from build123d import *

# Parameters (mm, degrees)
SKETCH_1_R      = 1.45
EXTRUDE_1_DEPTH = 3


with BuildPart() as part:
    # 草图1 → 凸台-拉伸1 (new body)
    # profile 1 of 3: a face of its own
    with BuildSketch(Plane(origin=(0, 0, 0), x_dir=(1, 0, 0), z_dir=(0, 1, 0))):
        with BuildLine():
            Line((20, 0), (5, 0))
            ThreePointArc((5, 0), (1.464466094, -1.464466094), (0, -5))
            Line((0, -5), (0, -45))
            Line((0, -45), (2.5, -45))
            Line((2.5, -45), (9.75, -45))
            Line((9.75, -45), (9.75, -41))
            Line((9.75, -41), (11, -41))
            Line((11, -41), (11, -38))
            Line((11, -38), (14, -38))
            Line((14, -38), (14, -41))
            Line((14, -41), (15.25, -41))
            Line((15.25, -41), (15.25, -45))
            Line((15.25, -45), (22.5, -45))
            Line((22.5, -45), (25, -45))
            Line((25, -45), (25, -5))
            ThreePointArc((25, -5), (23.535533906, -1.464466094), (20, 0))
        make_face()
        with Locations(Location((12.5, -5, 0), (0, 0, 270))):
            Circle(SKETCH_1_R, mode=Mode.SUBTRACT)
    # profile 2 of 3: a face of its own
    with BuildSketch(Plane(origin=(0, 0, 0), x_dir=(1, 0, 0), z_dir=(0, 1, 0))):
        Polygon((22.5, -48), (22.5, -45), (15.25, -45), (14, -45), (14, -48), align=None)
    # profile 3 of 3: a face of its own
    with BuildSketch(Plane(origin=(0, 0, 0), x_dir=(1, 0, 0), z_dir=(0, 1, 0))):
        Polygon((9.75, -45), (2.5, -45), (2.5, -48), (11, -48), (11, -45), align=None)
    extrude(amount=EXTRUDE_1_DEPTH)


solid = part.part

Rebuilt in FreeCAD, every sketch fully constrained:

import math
import FreeCAD as App
import Part
import Sketcher

V = App.Vector
Q = App.Units.Quantity

doc = App.newDocument("Part")
body = doc.addObject("PartDesign::Body", "Body")

sketch1 = doc.addObject("Sketcher::SketchObject", "Sketch")
body.addObject(sketch1)
sketch1.AttachmentSupport = (doc.XZ_Plane, [""])
sketch1.MapMode = "FlatFace"
sketch1.addGeometry(Part.LineSegment(V(20, 0, 0), V(5, 0, 0)), False)
sketch1.addGeometry(Part.ArcOfCircle(Part.Circle(V(5, 5, 0), V(0, 0, 1), 5), math.radians(180), math.radians(270)), False)
sketch1.addGeometry(Part.LineSegment(V(0, 5, 0), V(0, 45, 0)), False)
sketch1.addGeometry(Part.LineSegment(V(0, 45, 0), V(2.5, 45, 0)), False)
sketch1.addGeometry(Part.LineSegment(V(2.5, 45, 0), V(2.5, 48, 0)), False)
sketch1.addGeometry(Part.LineSegment(V(2.5, 48, 0), V(11, 48, 0)), False)
sketch1.addGeometry(Part.LineSegment(V(11, 48, 0), V(11, 45, 0)), False)
sketch1.addGeometry(Part.LineSegment(V(11, 45, 0), V(9.8, 45, 0)), False)
sketch1.addGeometry(Part.LineSegment(V(9.8, 45, 0), V(9.8, 41, 0)), False)
sketch1.addGeometry(Part.LineSegment(V(9.8, 41, 0), V(11, 41, 0)), False)
sketch1.addGeometry(Part.LineSegment(V(11, 41, 0), V(11, 38, 0)), False)
sketch1.addGeometry(Part.LineSegment(V(11, 38, 0), V(14, 38, 0)), False)
sketch1.addGeometry(Part.LineSegment(V(14, 38, 0), V(14, 41, 0)), False)
sketch1.addGeometry(Part.LineSegment(V(14, 41, 0), V(15.2, 41, 0)), False)
sketch1.addGeometry(Part.LineSegment(V(15.2, 41, 0), V(15.2, 45, 0)), False)
sketch1.addGeometry(Part.LineSegment(V(15.2, 45, 0), V(14, 45, 0)), False)
sketch1.addGeometry(Part.LineSegment(V(14, 45, 0), V(14, 48, 0)), False)
sketch1.addGeometry(Part.LineSegment(V(14, 48, 0), V(22.5, 48, 0)), False)
sketch1.addGeometry(Part.LineSegment(V(22.5, 48, 0), V(22.5, 45, 0)), False)
sketch1.addGeometry(Part.LineSegment(V(22.5, 45, 0), V(25, 45, 0)), False)
sketch1.addGeometry(Part.LineSegment(V(25, 45, 0), V(25, 5, 0)), False)
sketch1.addGeometry(Part.ArcOfCircle(Part.Circle(V(20, 5, 0), V(0, 0, 1), 5), math.radians(-90), math.radians(0)), False)
sketch1.addGeometry(Part.Circle(V(12.5, 5, 0), V(0, 0, 1), 1.4), False)
sketch1.addConstraint(Sketcher.Constraint("Tangent", 0, 2, 1, 2))
sketch1.addConstraint(Sketcher.Constraint("Tangent", 1, 1, 2, 1))
sketch1.addConstraint(Sketcher.Constraint("Coincident", 2, 2, 3, 1))
sketch1.addConstraint(Sketcher.Constraint("Coincident", 3, 2, 4, 1))
sketch1.addConstraint(Sketcher.Constraint("Coincident", 4, 2, 5, 1))
sketch1.addConstraint(Sketcher.Constraint("Coincident", 5, 2, 6, 1))
sketch1.addConstraint(Sketcher.Constraint("Coincident", 6, 2, 7, 1))
sketch1.addConstraint(Sketcher.Constraint("Coincident", 7, 2, 8, 1))
sketch1.addConstraint(Sketcher.Constraint("Coincident", 8, 2, 9, 1))
sketch1.addConstraint(Sketcher.Constraint("Coincident", 9, 2, 10, 1))
sketch1.addConstraint(Sketcher.Constraint("Coincident", 10, 2, 11, 1))
sketch1.addConstraint(Sketcher.Constraint("Coincident", 11, 2, 12, 1))
sketch1.addConstraint(Sketcher.Constraint("Coincident", 12, 2, 13, 1))
sketch1.addConstraint(Sketcher.Constraint("Coincident", 13, 2, 14, 1))
sketch1.addConstraint(Sketcher.Constraint("Coincident", 14, 2, 15, 1))
sketch1.addConstraint(Sketcher.Constraint("Coincident", 15, 2, 16, 1))
sketch1.addConstraint(Sketcher.Constraint("Coincident", 16, 2, 17, 1))
sketch1.addConstraint(Sketcher.Constraint("Coincident", 17, 2, 18, 1))
sketch1.addConstraint(Sketcher.Constraint("Coincident", 18, 2, 19, 1))
sketch1.addConstraint(Sketcher.Constraint("Coincident", 19, 2, 20, 1))
sketch1.addConstraint(Sketcher.Constraint("Tangent", 20, 2, 21, 2))
sketch1.addConstraint(Sketcher.Constraint("Tangent", 21, 1, 0, 1))
sketch1.addConstraint(Sketcher.Constraint("Horizontal", 0))
sketch1.addConstraint(Sketcher.Constraint("Vertical", 2))
sketch1.addConstraint(Sketcher.Constraint("Horizontal", 3))
sketch1.addConstraint(Sketcher.Constraint("Vertical", 4))
sketch1.addConstraint(Sketcher.Constraint("Horizontal", 5))
sketch1.addConstraint(Sketcher.Constraint("Vertical", 6))
sketch1.addConstraint(Sketcher.Constraint("Horizontal", 7))
sketch1.addConstraint(Sketcher.Constraint("Vertical", 8))
sketch1.addConstraint(Sketcher.Constraint("Horizontal", 9))
sketch1.addConstraint(Sketcher.Constraint("Vertical", 10))
sketch1.addConstraint(Sketcher.Constraint("Horizontal", 11))
sketch1.addConstraint(Sketcher.Constraint("Vertical", 12))
sketch1.addConstraint(Sketcher.Constraint("Horizontal", 13))
sketch1.addConstraint(Sketcher.Constraint("Vertical", 14))
sketch1.addConstraint(Sketcher.Constraint("Horizontal", 15))
sketch1.addConstraint(Sketcher.Constraint("Vertical", 16))
sketch1.addConstraint(Sketcher.Constraint("Horizontal", 17))
sketch1.addConstraint(Sketcher.Constraint("Vertical", 18))
sketch1.addConstraint(Sketcher.Constraint("Horizontal", 19))
sketch1.addConstraint(Sketcher.Constraint("Vertical", 20))
sketch1.addConstraint(Sketcher.Constraint("Equal", 1, 21))
sketch1.addConstraint(Sketcher.Constraint("PointOnObject", 0, 2, -1))
sketch1.addConstraint(Sketcher.Constraint("PointOnObject", 1, 1, -2))
sketch1.addConstraint(Sketcher.Constraint("Horizontal", 21, 3, 22, 3))
sketch1.addConstraint(Sketcher.Constraint("Horizontal", 3, 2, 6, 2))
sketch1.addConstraint(Sketcher.Constraint("Horizontal", 9, 2, 12, 2))
sketch1.addConstraint(Sketcher.Constraint("Horizontal", 7, 2, 14, 2))
sketch1.addConstraint(Sketcher.Constraint("Horizontal", 5, 2, 16, 2))
sketch1.addConstraint(Sketcher.Constraint("Horizontal", 15, 2, 18, 2))
sketch1.addConstraint(Sketcher.Constraint("Vertical", 6, 2, 9, 2))
sketch1.addConstraint(Sketcher.Constraint("Vertical", 12, 2, 15, 2))
sketch1.addConstraint(Sketcher.Constraint("Equal", 9, 13))
sketch1.addConstraint(Sketcher.Constraint("Equal", 5, 17))
sketch1.addConstraint(Sketcher.Constraint("Equal", 3, 19))
sketch1.addConstraint(Sketcher.Constraint("Equal", 11, 4))
sketch1.addConstraint(Sketcher.Constraint("Equal", 6, 10))
sketch1.addConstraint(Sketcher.Constraint("Radius", 1, Q("5 mm")))
sketch1.addConstraint(Sketcher.Constraint("Diameter", 22, Q("2.9 mm")))
sketch1.addConstraint(Sketcher.Constraint("DistanceX", 0, 2, 0, 1, Q("15 mm")))
sketch1.addConstraint(Sketcher.Constraint("DistanceX", 11, 1, 11, 2, Q("3 mm")))
sketch1.addConstraint(Sketcher.Constraint("DistanceY", 2, 1, 2, 2, Q("40 mm")))
sketch1.addConstraint(Sketcher.Constraint("DistanceY", 8, 2, 8, 1, Q("4 mm")))
sketch1.addConstraint(Sketcher.Constraint("DistanceX", 3, 1, 3, 2, Q("2.5 mm")))
sketch1.addConstraint(Sketcher.Constraint("DistanceX", 3, 2, 22, 3, Q("10 mm")))
sketch1.addConstraint(Sketcher.Constraint("DistanceX", 7, 2, 7, 1, Q("1.25 mm")))
pad1 = doc.addObject("PartDesign::Pad", "Pad")
body.addObject(pad1)
pad1.Profile = sketch1
pad1.Length = 3
pad1.Reversed = True

doc.recompute()
